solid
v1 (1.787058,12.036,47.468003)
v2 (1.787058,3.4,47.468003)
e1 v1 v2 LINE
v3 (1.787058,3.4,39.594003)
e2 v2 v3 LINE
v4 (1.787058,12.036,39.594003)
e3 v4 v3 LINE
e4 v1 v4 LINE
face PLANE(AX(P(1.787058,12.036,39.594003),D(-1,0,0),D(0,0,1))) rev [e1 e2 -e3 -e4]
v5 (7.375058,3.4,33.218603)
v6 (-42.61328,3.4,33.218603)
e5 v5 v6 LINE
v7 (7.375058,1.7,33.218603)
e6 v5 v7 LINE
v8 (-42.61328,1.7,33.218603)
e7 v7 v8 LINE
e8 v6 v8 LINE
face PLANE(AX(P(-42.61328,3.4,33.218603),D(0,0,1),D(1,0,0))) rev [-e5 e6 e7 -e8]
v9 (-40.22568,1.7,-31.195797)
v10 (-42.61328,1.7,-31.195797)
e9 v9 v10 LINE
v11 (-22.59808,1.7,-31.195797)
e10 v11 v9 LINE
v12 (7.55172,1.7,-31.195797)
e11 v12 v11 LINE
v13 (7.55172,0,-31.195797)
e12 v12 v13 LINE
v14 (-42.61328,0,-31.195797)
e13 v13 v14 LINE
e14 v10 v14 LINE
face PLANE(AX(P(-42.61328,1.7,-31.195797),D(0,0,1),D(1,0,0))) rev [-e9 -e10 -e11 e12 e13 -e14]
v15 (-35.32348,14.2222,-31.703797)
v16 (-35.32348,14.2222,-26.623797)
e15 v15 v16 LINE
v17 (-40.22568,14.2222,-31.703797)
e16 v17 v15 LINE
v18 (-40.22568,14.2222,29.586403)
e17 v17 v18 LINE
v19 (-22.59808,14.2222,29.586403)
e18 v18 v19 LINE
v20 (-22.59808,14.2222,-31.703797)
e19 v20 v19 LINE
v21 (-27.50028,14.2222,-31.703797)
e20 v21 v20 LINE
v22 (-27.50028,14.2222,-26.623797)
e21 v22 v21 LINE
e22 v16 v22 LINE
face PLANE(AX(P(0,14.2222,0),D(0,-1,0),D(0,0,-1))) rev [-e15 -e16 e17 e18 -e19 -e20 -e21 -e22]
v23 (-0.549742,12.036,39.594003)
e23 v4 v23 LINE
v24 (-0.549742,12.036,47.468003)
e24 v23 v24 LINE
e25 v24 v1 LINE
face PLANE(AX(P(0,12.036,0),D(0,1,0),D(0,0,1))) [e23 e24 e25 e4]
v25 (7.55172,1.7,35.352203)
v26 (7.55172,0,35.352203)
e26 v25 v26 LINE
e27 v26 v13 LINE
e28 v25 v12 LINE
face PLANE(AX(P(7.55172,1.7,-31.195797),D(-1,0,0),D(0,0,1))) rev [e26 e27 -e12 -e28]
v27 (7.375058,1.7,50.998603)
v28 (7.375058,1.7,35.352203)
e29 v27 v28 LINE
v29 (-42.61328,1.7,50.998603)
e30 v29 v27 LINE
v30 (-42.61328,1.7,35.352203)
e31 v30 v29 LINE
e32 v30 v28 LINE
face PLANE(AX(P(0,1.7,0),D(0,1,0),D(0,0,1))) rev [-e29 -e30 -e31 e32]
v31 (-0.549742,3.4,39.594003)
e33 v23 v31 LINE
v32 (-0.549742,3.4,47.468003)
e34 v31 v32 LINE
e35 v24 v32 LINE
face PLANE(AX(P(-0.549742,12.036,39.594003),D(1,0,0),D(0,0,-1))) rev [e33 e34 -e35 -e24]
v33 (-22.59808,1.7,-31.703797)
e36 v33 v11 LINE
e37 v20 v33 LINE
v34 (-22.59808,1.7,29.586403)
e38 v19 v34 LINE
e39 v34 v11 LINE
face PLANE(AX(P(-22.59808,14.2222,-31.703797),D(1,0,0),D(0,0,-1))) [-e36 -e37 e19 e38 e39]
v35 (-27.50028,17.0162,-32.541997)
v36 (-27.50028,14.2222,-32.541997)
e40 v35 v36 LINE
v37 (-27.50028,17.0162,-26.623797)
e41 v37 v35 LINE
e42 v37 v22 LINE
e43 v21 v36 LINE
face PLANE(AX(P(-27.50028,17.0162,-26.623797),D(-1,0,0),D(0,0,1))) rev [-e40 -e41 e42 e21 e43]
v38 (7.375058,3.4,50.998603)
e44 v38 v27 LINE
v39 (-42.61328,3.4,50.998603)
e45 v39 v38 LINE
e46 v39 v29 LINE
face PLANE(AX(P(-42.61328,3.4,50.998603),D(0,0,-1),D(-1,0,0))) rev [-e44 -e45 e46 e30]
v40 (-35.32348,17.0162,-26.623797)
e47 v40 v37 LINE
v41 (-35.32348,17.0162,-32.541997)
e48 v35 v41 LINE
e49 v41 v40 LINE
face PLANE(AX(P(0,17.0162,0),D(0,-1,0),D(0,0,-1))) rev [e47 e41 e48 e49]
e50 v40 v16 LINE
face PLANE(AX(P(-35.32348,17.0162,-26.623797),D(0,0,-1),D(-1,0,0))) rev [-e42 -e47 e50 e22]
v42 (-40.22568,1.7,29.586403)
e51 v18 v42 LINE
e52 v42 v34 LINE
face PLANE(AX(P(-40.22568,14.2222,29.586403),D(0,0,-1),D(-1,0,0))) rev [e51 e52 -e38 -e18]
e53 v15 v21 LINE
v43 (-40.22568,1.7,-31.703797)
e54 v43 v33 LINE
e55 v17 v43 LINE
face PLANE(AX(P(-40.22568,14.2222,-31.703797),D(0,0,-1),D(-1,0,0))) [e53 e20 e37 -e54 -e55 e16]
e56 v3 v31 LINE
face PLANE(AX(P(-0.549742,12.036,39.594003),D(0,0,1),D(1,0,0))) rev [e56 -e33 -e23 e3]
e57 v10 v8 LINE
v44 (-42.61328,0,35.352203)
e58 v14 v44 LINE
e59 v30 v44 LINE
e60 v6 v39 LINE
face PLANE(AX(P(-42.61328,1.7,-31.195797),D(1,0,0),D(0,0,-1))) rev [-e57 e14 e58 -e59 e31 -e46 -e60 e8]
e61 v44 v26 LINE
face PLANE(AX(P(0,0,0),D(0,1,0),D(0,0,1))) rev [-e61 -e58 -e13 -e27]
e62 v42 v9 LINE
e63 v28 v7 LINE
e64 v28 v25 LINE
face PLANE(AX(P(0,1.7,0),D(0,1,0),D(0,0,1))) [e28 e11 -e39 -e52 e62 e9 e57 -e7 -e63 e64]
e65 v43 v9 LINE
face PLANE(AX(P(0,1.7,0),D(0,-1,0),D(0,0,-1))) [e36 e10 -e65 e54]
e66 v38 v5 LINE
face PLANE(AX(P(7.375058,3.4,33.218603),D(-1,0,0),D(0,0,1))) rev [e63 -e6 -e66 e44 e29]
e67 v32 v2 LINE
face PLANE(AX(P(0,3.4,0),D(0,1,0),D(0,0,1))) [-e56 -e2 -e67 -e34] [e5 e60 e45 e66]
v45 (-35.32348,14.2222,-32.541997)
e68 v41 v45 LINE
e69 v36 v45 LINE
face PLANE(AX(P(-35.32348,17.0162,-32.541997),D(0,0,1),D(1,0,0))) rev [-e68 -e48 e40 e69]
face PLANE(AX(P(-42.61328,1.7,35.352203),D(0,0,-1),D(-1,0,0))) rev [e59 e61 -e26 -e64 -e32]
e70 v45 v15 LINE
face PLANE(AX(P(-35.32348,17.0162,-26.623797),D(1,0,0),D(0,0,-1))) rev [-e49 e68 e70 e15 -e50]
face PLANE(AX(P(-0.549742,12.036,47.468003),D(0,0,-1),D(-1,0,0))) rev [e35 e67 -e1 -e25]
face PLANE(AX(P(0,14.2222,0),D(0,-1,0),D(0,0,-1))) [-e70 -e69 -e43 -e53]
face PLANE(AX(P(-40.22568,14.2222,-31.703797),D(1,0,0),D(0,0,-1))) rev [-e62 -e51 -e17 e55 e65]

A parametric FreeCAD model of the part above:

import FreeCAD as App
import Part
import Sketcher
from FreeCAD import Vector
Q = App.Units.Quantity


def add_polygon(sketch, points):
    """Adds a closed chain of lines whose ends are joined by coincident constraints."""
    first, n = sketch.GeometryCount, len(points)
    for a, b in zip(points, points[1:] + points[:1]):
        sketch.addGeometry(Part.LineSegment(App.Vector(*a, 0), App.Vector(*b, 0)), False)
    for i in range(n):
        sketch.addConstraint(Sketcher.Constraint("Coincident", first + i, 2, first + (i + 1) % n, 1))

doc = App.newDocument("Part")
body = doc.addObject("PartDesign::Body", "Body")

sketch1 = body.newObject("Sketcher::SketchObject", "Sketch")
sketch1.AttachmentSupport = (doc.getObject("XZ_Plane"), [""])
sketch1.MapMode = "FlatFace"
add_polygon(sketch1, [(-43, -31), (-43, 35), (8, 35), (8, -31)])
sketch1.addConstraint([
    Sketcher.Constraint("Vertical", 0),
    Sketcher.Constraint("Horizontal", 1),
    Sketcher.Constraint("Vertical", 2),
    Sketcher.Constraint("Horizontal", 3),
    Sketcher.Constraint("DistanceY", 0, 1, 0, 2, Q("2.62 in")),
    Sketcher.Constraint("DistanceX", 1, 1, 1, 2, Q("1.975 in")),
    Sketcher.Constraint("DistanceX", 0, 2, -1, 1, Q("42.61328 mm")),
    Sketcher.Constraint("DistanceY", -1, 1, 0, 2, Q("35.352203 mm")),
])
pad1 = body.newObject("PartDesign::Pad", "Pad")
pad1.Profile = sketch1
pad1.Length = 1.7
pad1.Reversed = True

sketch2 = body.newObject("Sketcher::SketchObject", "Sketch001")
sketch2.AttachmentSupport = (doc.getObject("XZ_Plane"), [""])
sketch2.MapMode = "FlatFace"
sketch2.AttachmentOffset = App.Placement(Vector(0, 0, -1.7), App.Rotation())
add_polygon(sketch2, [(-43, 33), (-43, 51), (7, 51), (7, 33)])
sketch2.addConstraint([
    Sketcher.Constraint("Vertical", 0),
    Sketcher.Constraint("Horizontal", 1),
    Sketcher.Constraint("Vertical", 2),
    Sketcher.Constraint("Horizontal", 3),
    Sketcher.Constraint("DistanceY", 0, 1, 0, 2, Q("0.7 in")),
    Sketcher.Constraint("DistanceX", 1, 1, 1, 2, Q("49.988338 mm")),
    Sketcher.Constraint("DistanceX", 0, 2, -1, 1, Q("42.61328 mm")),
    Sketcher.Constraint("DistanceY", -1, 1, 0, 2, Q("50.998603 mm")),
])
pad2 = body.newObject("PartDesign::Pad", "Pad001")
pad2.Profile = sketch2
pad2.Length = 1.7
pad2.Reversed = True

sketch3 = body.newObject("Sketcher::SketchObject", "Sketch002")
sketch3.AttachmentSupport = (doc.getObject("XZ_Plane"), [""])
sketch3.MapMode = "FlatFace"
sketch3.AttachmentOffset = App.Placement(Vector(0, 0, -1.7), App.Rotation())
add_polygon(sketch3, [(-40, -32), (-40, 30), (-23, 30), (-23, -32)])
sketch3.addConstraint([
    Sketcher.Constraint("Vertical", 0),
    Sketcher.Constraint("Horizontal", 1),
    Sketcher.Constraint("Vertical", 2),
    Sketcher.Constraint("Horizontal", 3),
    Sketcher.Constraint("DistanceX", 1, 1, 1, 2, Q("0.694 in")),
    Sketcher.Constraint("DistanceY", 0, 1, 0, 2, Q("2.413 in")),
    Sketcher.Constraint("DistanceX", 0, 2, -1, 1, Q("40.22568 mm")),
    Sketcher.Constraint("DistanceY", -1, 1, 0, 2, Q("29.586403 mm")),
])
pad3 = body.newObject("PartDesign::Pad", "Pad002")
pad3.Profile = sketch3
pad3.Length = Q("0.493 in")
pad3.Reversed = True

sketch4 = body.newObject("Sketcher::SketchObject", "Sketch003")
sketch4.AttachmentSupport = (doc.getObject("XZ_Plane"), [""])
sketch4.MapMode = "FlatFace"
sketch4.AttachmentOffset = App.Placement(Vector(0, 0, -14.2222), App.Rotation())
add_polygon(sketch4, [(-35, -33), (-35, -27), (-28, -27), (-28, -33)])
sketch4.addConstraint([
    Sketcher.Constraint("Vertical", 0),
    Sketcher.Constraint("Horizontal", 1),
    Sketcher.Constraint("Vertical", 2),
    Sketcher.Constraint("Horizontal", 3),
    Sketcher.Constraint("DistanceX", 1, 1, 1, 2, Q("0.308 in")),
    Sketcher.Constraint("DistanceY", 0, 1, 0, 2, Q("0.233 in")),
    Sketcher.Constraint("DistanceX", 0, 2, -1, 1, Q("35.32348 mm")),
    Sketcher.Constraint("DistanceY", 0, 2, -1, 1, Q("26.623797 mm")),
])
pad4 = body.newObject("PartDesign::Pad", "Pad003")
pad4.Profile = sketch4
pad4.Length = Q("0.11 in")
pad4.Reversed = True

sketch5 = body.newObject("Sketcher::SketchObject", "Sketch004")
sketch5.AttachmentSupport = (doc.getObject("XZ_Plane"), [""])
sketch5.MapMode = "FlatFace"
sketch5.AttachmentOffset = App.Placement(Vector(0, 0, -3.4), App.Rotation())
add_polygon(sketch5, [(-0.5, 39.6), (-0.5, 47.5), (1.8, 47.5), (1.8, 39.6)])
sketch5.addConstraint([
    Sketcher.Constraint("Vertical", 0),
    Sketcher.Constraint("Horizontal", 1),
    Sketcher.Constraint("Vertical", 2),
    Sketcher.Constraint("Horizontal", 3),
    Sketcher.Constraint("DistanceY", 0, 1, 0, 2, Q("0.31 in")),
    Sketcher.Constraint("DistanceX", 1, 1, 1, 2, Q("0.092 in")),
    Sketcher.Constraint("DistanceX", 0, 2, -1, 1, Q("0.549742 mm")),
    Sketcher.Constraint("DistanceY", -1, 1, 0, 2, Q("47.468003 mm")),
])
pad5 = body.newObject("PartDesign::Pad", "Pad004")
pad5.Profile = sketch5
pad5.Length = Q("0.34 in")
pad5.Reversed = True

doc.recompute()
